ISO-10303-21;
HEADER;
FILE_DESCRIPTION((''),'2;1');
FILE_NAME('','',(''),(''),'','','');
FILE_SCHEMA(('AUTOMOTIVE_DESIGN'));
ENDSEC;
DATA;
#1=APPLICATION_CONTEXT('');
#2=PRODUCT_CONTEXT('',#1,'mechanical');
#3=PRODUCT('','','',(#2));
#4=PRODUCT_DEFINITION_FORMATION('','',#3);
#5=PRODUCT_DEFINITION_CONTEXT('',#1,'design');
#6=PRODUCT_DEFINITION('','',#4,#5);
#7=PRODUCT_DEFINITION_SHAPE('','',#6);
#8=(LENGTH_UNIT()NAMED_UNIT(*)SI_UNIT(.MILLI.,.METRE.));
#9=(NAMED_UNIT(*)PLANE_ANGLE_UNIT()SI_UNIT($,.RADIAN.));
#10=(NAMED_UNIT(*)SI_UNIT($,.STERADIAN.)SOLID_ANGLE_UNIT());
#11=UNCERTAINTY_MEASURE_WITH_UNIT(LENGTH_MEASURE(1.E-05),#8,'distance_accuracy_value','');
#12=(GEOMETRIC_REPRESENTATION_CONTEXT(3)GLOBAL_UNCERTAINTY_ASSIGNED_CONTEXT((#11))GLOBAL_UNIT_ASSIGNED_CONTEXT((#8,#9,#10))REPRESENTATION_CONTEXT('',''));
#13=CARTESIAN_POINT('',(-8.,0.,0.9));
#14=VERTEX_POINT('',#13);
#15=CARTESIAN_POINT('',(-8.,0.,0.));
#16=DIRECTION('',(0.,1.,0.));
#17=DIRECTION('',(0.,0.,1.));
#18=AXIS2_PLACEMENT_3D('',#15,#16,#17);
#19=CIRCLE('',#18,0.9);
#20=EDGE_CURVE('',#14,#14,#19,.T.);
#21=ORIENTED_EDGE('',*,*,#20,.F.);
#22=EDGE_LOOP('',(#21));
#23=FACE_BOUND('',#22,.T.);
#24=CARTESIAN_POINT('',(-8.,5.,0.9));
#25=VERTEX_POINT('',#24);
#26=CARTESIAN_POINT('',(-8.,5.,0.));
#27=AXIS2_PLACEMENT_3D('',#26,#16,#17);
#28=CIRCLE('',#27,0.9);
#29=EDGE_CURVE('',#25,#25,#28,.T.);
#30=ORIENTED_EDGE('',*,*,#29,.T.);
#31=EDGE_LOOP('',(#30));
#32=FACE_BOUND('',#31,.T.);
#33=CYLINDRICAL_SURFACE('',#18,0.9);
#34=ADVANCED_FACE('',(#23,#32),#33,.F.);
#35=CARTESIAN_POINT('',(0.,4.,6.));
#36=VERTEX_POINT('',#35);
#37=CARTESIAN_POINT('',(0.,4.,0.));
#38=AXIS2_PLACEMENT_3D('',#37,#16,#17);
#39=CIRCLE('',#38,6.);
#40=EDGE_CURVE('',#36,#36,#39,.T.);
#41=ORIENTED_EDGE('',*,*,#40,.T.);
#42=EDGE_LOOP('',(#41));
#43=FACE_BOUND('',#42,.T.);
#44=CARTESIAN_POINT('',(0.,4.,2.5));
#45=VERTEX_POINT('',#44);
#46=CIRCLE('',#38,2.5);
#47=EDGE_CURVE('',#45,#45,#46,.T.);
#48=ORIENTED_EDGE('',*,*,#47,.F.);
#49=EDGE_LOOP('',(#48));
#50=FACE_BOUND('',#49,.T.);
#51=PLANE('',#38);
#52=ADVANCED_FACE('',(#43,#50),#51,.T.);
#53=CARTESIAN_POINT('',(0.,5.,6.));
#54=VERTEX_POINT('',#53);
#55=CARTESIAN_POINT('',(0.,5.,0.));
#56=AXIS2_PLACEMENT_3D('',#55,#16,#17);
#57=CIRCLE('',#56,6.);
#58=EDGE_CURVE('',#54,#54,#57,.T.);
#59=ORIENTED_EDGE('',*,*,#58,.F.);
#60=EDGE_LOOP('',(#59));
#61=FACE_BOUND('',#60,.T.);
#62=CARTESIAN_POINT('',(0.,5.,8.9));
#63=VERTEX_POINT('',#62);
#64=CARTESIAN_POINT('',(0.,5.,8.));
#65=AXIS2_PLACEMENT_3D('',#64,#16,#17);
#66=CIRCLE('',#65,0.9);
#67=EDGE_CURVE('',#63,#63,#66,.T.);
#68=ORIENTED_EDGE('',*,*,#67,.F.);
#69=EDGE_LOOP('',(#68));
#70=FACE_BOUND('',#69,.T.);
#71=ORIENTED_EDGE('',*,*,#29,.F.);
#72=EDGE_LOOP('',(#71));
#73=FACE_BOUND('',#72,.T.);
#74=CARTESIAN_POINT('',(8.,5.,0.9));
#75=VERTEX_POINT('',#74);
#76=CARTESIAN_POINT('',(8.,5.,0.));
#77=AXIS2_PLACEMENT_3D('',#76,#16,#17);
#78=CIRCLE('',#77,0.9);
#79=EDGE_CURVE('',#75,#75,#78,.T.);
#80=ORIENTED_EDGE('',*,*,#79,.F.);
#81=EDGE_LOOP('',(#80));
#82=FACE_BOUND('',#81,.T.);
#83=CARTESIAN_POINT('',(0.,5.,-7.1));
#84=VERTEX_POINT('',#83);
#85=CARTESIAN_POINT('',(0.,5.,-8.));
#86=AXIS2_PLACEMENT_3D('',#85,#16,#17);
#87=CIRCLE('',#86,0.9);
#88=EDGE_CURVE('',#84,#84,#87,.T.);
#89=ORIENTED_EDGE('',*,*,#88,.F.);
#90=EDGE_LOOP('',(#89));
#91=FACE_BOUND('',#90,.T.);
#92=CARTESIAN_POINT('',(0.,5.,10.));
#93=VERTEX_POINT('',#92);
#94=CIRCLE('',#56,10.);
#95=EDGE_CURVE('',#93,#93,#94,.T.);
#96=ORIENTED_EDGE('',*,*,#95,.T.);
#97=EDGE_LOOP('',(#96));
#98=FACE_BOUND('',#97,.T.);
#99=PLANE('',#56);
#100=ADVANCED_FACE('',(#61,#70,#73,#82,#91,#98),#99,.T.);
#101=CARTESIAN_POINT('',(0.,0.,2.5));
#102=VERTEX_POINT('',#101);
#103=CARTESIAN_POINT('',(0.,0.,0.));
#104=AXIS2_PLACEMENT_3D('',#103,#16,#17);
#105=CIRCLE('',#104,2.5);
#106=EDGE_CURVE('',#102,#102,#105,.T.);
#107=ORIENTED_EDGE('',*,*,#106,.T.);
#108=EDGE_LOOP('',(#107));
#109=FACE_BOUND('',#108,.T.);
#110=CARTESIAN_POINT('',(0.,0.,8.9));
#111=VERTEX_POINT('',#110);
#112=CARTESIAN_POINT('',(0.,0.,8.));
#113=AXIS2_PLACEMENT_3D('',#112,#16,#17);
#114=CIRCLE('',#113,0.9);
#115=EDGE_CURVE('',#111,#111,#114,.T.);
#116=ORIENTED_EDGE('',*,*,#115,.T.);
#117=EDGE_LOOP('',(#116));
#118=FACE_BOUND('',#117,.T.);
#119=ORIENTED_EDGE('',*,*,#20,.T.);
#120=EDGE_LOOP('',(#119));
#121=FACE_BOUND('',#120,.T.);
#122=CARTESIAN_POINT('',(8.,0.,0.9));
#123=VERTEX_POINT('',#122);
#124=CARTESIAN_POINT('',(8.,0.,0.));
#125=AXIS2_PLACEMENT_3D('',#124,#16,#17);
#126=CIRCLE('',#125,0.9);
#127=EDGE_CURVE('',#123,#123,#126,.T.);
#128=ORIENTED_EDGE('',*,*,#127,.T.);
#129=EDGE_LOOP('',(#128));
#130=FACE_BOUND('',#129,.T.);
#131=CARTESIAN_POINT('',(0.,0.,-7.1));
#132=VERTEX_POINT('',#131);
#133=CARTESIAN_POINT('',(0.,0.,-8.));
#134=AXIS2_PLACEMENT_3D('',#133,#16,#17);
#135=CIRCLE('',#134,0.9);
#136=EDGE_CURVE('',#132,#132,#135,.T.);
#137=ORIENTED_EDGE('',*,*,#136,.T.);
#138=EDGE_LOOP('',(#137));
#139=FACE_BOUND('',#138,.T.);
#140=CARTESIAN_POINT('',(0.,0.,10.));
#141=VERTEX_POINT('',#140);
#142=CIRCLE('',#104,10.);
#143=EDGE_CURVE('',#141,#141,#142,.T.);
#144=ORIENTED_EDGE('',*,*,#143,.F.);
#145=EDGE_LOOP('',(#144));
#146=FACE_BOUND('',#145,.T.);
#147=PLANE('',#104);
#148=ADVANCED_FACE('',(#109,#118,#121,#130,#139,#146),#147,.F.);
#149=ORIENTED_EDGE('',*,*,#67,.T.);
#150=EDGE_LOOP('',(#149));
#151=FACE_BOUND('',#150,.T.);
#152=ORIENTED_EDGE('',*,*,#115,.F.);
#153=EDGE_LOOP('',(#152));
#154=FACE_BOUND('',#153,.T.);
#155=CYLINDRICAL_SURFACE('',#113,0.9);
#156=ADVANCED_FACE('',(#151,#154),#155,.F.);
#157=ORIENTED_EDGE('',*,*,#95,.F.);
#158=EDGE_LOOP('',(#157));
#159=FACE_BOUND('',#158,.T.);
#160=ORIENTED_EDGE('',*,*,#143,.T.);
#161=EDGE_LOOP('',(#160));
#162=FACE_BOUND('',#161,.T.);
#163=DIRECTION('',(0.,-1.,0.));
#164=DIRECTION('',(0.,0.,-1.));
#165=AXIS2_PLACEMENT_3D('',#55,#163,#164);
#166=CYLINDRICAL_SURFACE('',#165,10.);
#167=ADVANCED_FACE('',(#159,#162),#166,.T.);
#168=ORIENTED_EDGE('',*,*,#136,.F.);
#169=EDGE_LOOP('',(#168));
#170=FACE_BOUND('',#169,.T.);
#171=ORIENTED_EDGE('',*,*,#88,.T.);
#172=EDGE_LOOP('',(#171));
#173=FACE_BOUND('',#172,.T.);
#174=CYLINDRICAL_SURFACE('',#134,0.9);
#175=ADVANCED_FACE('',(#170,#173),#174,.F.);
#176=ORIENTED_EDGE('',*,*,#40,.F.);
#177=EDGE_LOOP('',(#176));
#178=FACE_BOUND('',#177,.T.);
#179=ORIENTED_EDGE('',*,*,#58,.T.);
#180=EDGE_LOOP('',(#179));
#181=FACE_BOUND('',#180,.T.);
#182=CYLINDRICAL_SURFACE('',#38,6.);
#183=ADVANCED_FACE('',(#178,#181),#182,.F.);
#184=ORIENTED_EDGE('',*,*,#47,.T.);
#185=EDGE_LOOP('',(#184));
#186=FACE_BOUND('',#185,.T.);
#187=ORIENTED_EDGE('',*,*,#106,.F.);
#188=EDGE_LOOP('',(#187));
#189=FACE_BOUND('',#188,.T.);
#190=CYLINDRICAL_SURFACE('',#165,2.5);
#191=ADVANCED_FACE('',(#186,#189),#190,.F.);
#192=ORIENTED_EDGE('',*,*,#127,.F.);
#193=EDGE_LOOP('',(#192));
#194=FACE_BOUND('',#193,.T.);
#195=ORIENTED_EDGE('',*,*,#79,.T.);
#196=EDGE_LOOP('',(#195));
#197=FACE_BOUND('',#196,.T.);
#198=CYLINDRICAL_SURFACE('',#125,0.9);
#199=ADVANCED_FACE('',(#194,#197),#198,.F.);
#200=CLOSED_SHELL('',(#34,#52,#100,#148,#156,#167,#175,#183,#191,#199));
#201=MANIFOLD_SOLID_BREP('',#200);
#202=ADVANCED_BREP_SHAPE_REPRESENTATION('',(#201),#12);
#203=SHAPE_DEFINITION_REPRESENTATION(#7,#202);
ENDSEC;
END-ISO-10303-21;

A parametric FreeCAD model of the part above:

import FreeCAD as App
import Part
import Sketcher
from FreeCAD import Vector
Q = App.Units.Quantity

doc = App.newDocument("Part")
body = doc.addObject("PartDesign::Body", "Body")

# Sketch on XZ plane
sketch1 = doc.addObject("Sketcher::SketchObject", "Sketch")
body.addObject(sketch1)
sketch1.AttachmentSupport = (doc.XZ_Plane, [""])
sketch1.MapMode = "FlatFace"
sketch1.addGeometry([
    Part.Circle(Vector(0, 0, 0), Vector(0, 0, 1), 10),
    Part.Circle(Vector(0, 0, 0), Vector(0, 0, 1), 2.5),
], False)
sketch1.addConstraint([
    Sketcher.Constraint("Coincident", 0, 3, -1, 1),
    Sketcher.Constraint("Coincident", 1, 3, -1, 1),
    Sketcher.Constraint("Diameter", 0, Q("20 mm")),
    Sketcher.Constraint("Diameter", 1, Q("5 mm")),
])
pad1 = doc.addObject("PartDesign::Pad", "Pad")
body.addObject(pad1)
pad1.Profile = sketch1
pad1.Length = 5
pad1.Reversed = True

# Sketch on XZ plane
sketch2 = doc.addObject("Sketcher::SketchObject", "Sketch001")
body.addObject(sketch2)
sketch2.AttachmentSupport = (doc.XZ_Plane, [""])
sketch2.MapMode = "FlatFace"
sketch2.AttachmentOffset = App.Placement(Vector(0, 0, -5), App.Rotation())
sketch2.addGeometry(Part.Circle(Vector(0, 0, 0), Vector(0, 0, 1), 6), False)
sketch2.addConstraint([
    Sketcher.Constraint("Coincident", 0, 3, -1, 1),
    Sketcher.Constraint("Diameter", 0, Q("12 mm")),
])
pocket1 = doc.addObject("PartDesign::Pocket", "Pocket")
body.addObject(pocket1)
pocket1.Profile = sketch2
pocket1.Length = 1
pocket1.Reversed = True

# Sketch on XZ plane
sketch3 = doc.addObject("Sketcher::SketchObject", "Sketch002")
body.addObject(sketch3)
sketch3.AttachmentSupport = (doc.XZ_Plane, [""])
sketch3.MapMode = "FlatFace"
sketch3.AttachmentOffset = App.Placement(Vector(0, 0, -5), App.Rotation())
sketch3.addGeometry([
    Part.Circle(Vector(0, -8, 0), Vector(0, 0, 1), 0.9),
    Part.Circle(Vector(8, 0, 0), Vector(0, 0, 1), 0.9),
    Part.Circle(Vector(0, 8, 0), Vector(0, 0, 1), 0.9),
    Part.Circle(Vector(-8, 0, 0), Vector(0, 0, 1), 0.9),
], False)
sketch3.addConstraint([
    Sketcher.Constraint("Equal", 0, 1),
    Sketcher.Constraint("Equal", 1, 2),
    Sketcher.Constraint("Equal", 2, 3),
    Sketcher.Constraint("Symmetric", 0, 3, 2, 3, -1, 1),
    Sketcher.Constraint("Symmetric", 1, 3, 3, 3, -1, 1),
    Sketcher.Constraint("PointOnObject", 0, 3, -2),
    Sketcher.Constraint("PointOnObject", 1, 3, -1),
    Sketcher.Constraint("Diameter", 0, Q("1.8 mm")),
    Sketcher.Constraint("DistanceY", 0, 3, -1, 1, Q("8 mm")),
    Sketcher.Constraint("DistanceX", -1, 1, 1, 3, Q("8 mm")),
])
pocket2 = doc.addObject("PartDesign::Pocket", "Pocket001")
body.addObject(pocket2)
pocket2.Profile = sketch3
pocket2.Type = "ThroughAll"
pocket2.Reversed = True

doc.recompute()
